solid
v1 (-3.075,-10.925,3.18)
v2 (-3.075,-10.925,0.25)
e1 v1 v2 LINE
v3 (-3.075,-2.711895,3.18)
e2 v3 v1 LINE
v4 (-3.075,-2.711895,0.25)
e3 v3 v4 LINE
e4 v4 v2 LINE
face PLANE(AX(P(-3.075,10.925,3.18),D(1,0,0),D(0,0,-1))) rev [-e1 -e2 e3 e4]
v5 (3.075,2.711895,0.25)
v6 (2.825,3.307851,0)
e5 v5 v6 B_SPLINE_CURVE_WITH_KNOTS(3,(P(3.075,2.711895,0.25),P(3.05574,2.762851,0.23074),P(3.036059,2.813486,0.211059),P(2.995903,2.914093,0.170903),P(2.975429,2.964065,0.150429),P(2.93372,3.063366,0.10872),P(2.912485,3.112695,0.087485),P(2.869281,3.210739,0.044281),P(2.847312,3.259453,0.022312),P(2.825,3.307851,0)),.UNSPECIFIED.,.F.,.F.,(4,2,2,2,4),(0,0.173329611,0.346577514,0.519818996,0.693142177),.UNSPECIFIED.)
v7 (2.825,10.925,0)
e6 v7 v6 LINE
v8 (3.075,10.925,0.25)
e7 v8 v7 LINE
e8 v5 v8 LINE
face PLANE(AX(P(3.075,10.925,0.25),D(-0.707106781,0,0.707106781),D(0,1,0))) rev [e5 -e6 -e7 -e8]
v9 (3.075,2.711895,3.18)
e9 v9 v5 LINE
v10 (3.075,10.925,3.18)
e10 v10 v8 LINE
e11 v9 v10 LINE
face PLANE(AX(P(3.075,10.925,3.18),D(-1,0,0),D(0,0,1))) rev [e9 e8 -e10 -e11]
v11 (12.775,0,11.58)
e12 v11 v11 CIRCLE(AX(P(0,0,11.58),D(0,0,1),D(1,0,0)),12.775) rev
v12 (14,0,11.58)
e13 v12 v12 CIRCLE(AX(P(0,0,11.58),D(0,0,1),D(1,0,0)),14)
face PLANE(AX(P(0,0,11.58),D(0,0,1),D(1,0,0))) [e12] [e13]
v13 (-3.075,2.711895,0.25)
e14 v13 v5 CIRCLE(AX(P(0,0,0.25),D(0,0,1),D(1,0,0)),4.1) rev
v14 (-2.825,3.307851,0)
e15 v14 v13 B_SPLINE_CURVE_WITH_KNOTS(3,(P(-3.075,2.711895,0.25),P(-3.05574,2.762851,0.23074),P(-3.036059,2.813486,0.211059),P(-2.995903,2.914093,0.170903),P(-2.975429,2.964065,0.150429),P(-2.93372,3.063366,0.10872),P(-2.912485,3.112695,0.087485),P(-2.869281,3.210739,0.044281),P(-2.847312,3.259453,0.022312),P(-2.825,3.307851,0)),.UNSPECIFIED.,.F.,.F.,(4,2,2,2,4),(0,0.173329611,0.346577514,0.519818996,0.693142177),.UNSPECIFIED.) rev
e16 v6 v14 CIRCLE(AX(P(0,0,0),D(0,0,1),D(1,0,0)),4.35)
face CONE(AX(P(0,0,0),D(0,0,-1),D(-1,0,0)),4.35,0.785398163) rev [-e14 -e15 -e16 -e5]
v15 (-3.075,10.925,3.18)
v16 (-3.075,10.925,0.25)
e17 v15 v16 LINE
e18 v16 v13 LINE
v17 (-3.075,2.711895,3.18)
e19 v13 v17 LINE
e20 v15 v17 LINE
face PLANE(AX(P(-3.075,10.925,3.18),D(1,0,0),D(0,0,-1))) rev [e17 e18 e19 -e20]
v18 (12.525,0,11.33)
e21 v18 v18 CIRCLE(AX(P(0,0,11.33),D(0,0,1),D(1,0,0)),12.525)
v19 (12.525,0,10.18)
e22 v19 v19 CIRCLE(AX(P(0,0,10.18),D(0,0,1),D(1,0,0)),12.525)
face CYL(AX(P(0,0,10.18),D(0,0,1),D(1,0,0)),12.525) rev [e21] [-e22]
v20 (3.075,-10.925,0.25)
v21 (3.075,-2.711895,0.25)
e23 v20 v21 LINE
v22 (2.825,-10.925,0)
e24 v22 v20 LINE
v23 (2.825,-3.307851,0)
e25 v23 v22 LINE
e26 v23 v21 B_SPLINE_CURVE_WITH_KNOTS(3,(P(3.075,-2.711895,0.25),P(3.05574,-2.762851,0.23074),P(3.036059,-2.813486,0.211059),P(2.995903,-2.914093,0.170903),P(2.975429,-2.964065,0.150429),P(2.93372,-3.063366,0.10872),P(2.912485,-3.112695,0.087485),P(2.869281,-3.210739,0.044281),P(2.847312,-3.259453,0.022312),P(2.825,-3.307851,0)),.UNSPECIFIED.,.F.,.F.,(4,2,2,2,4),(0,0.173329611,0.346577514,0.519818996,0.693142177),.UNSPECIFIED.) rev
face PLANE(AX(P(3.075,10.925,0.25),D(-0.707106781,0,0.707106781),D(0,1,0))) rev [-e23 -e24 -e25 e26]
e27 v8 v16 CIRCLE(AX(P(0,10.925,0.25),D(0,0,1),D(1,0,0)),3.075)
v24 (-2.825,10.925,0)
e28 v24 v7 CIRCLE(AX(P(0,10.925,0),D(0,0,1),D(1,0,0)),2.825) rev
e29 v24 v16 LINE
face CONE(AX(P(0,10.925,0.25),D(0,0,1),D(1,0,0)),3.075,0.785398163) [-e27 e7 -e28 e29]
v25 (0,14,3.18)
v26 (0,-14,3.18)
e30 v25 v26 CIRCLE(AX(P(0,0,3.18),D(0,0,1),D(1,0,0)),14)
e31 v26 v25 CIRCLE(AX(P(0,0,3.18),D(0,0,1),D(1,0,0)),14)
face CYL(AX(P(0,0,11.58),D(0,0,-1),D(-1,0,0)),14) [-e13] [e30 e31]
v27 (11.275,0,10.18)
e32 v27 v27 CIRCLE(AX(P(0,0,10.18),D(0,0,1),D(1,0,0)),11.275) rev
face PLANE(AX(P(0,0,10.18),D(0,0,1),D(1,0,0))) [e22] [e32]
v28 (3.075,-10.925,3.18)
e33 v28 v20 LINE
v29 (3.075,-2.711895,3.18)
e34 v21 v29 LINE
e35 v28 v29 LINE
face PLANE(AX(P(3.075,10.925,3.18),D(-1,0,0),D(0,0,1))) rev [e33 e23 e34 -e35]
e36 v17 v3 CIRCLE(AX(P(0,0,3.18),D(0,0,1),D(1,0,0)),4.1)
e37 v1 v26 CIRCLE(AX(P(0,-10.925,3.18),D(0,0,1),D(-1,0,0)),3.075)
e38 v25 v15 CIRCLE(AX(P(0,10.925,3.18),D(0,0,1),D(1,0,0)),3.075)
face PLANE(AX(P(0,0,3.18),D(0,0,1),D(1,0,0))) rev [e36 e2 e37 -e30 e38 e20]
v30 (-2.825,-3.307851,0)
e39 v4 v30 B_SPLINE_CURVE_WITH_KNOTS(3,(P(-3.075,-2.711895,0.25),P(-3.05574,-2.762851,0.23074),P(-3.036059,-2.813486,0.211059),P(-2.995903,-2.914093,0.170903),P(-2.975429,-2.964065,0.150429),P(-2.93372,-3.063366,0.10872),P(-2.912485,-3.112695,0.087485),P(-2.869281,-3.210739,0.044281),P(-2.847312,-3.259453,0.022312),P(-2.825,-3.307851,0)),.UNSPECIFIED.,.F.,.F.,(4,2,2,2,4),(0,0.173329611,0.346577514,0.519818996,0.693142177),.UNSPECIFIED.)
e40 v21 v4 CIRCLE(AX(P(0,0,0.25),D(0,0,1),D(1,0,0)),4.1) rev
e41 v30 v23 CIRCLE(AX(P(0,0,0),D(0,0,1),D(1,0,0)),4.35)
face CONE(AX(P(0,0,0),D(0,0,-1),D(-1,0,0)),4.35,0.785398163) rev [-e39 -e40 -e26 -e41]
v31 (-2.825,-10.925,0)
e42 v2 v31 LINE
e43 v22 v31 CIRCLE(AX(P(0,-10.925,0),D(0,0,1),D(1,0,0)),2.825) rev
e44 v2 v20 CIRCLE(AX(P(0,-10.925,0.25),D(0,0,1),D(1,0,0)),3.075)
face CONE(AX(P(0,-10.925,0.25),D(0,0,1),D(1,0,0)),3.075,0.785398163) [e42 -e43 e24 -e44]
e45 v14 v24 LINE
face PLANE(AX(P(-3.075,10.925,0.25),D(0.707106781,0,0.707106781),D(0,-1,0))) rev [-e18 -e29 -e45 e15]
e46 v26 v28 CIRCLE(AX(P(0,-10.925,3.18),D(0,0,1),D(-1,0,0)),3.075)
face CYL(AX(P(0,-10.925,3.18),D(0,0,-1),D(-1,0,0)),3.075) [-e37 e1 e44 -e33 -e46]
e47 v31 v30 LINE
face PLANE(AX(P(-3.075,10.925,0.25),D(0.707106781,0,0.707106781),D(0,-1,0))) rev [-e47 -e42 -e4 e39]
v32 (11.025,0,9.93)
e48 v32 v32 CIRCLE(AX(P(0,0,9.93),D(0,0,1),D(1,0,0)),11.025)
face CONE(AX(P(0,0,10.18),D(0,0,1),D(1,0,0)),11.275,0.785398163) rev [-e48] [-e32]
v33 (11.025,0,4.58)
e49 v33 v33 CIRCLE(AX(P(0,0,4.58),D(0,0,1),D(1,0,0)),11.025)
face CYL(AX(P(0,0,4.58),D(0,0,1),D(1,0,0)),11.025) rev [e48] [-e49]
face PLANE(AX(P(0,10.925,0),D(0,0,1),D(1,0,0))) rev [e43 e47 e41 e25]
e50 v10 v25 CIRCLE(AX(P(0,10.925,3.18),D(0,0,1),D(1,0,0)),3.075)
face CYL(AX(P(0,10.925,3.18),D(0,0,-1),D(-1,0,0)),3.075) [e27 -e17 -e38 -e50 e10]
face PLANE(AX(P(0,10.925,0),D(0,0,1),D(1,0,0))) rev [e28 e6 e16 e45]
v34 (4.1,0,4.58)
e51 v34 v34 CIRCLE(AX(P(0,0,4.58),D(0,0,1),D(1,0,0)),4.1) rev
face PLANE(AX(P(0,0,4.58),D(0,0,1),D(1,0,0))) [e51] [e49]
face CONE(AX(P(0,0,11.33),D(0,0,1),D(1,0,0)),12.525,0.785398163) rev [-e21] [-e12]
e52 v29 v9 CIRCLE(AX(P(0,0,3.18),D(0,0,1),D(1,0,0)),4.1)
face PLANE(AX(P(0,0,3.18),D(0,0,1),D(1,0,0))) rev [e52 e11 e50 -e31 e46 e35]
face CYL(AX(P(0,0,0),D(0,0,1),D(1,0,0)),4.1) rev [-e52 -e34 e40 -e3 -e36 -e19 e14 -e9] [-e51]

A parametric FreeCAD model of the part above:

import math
import FreeCAD as App
import Part
import Sketcher
Q = App.Units.Quantity


def edges_at(feature, points):
    """Names of the edges that pass closest to the given points."""
    edges = feature.Shape.Edges
    near = lambda p: min(range(len(edges)), key=lambda i: edges[i].distToShape(Part.Vertex(*p))[0])
    return sorted({f"Edge{near(p) + 1}" for p in points})

doc = App.newDocument("Part")
body = doc.addObject("PartDesign::Body", "Body")

# Sketch on XY plane
sketch1 = doc.addObject("Sketcher::SketchObject", "Sketch")
body.addObject(sketch1)
sketch1.AttachmentSupport = (doc.XY_Plane, [""])
sketch1.MapMode = "FlatFace"
sketch1.addGeometry([
    Part.LineSegment(App.Vector(3.1, -10.9, 0), App.Vector(3.1, 10.9, 0)),
    Part.ArcOfCircle(Part.Circle(App.Vector(0, 10.9, 0), App.Vector(0, 0, 1), 3.1), math.radians(0), math.radians(180)),
    Part.LineSegment(App.Vector(-3.1, 10.9, 0), App.Vector(-3.1, -10.9, 0)),
    Part.ArcOfCircle(Part.Circle(App.Vector(0, -10.9, 0), App.Vector(0, 0, 1), 3.1), math.radians(180), math.radians(360)),
], False)
sketch1.addConstraint([
    Sketcher.Constraint("Tangent", 0, 2, 1, 1),
    Sketcher.Constraint("Tangent", 1, 2, 2, 1),
    Sketcher.Constraint("Tangent", 2, 2, 3, 1),
    Sketcher.Constraint("Tangent", 3, 2, 0, 1),
    Sketcher.Constraint("Vertical", 0),
    Sketcher.Constraint("Vertical", 2),
    Sketcher.Constraint("Symmetric", 1, 3, 3, 3, -1, 1),
    Sketcher.Constraint("Radius", 1, Q("3.075 mm")),
    Sketcher.Constraint("DistanceY", 0, 1, 0, 2, Q("21.85 mm")),
])
pad1 = doc.addObject("PartDesign::Pad", "Pad")
body.addObject(pad1)
pad1.Profile = sketch1
pad1.Length = 3.18

# Sketch on XY plane
sketch2 = doc.addObject("Sketcher::SketchObject", "Sketch001")
body.addObject(sketch2)
sketch2.AttachmentSupport = (doc.XY_Plane, [""])
sketch2.MapMode = "FlatFace"
sketch2.AttachmentOffset = App.Placement(App.Vector(0, 0, 3.18), App.Rotation())
sketch2.addGeometry(Part.Circle(App.Vector(0, 0, 0), App.Vector(0, 0, 1), 14), False)
sketch2.addConstraint([
    Sketcher.Constraint("Coincident", 0, 3, -1, 1),
    Sketcher.Constraint("Diameter", 0, Q("28 mm")),
])
pad2 = doc.addObject("PartDesign::Pad", "Pad001")
body.addObject(pad2)
pad2.Profile = sketch2
pad2.Length = 8.4

# Sketch on XY plane
sketch3 = doc.addObject("Sketcher::SketchObject", "Sketch002")
body.addObject(sketch3)
sketch3.AttachmentSupport = (doc.XY_Plane, [""])
sketch3.MapMode = "FlatFace"
sketch3.AttachmentOffset = App.Placement(App.Vector(0, 0, 11.58), App.Rotation())
sketch3.addGeometry(Part.Circle(App.Vector(0, 0, 0), App.Vector(0, 0, 1), 4.1), False)
sketch3.addConstraint([
    Sketcher.Constraint("Coincident", 0, 3, -1, 1),
    Sketcher.Constraint("Diameter", 0, Q("8.2 mm")),
])
pocket1 = doc.addObject("PartDesign::Pocket", "Pocket")
body.addObject(pocket1)
pocket1.Profile = sketch3
pocket1.Type = "ThroughAll"

# Sketch on XY plane
sketch4 = doc.addObject("Sketcher::SketchObject", "Sketch003")
body.addObject(sketch4)
sketch4.AttachmentSupport = (doc.XY_Plane, [""])
sketch4.MapMode = "FlatFace"
sketch4.AttachmentOffset = App.Placement(App.Vector(0, 0, 11.58), App.Rotation())
sketch4.addGeometry(Part.Circle(App.Vector(0, 0, 0), App.Vector(0, 0, 1), 11), False)
sketch4.addConstraint([
    Sketcher.Constraint("Coincident", 0, 3, -1, 1),
    Sketcher.Constraint("Diameter", 0, Q("22.05 mm")),
])
pocket2 = doc.addObject("PartDesign::Pocket", "Pocket001")
body.addObject(pocket2)
pocket2.Profile = sketch4
pocket2.Length = 7

# Sketch on XY plane
sketch5 = doc.addObject("Sketcher::SketchObject", "Sketch004")
body.addObject(sketch5)
sketch5.AttachmentSupport = (doc.XY_Plane, [""])
sketch5.MapMode = "FlatFace"
sketch5.AttachmentOffset = App.Placement(App.Vector(0, 0, 11.58), App.Rotation())
sketch5.addGeometry(Part.Circle(App.Vector(0, 0, 0), App.Vector(0, 0, 1), 13), False)
sketch5.addConstraint([
    Sketcher.Constraint("Coincident", 0, 3, -1, 1),
    Sketcher.Constraint("Diameter", 0, Q("25.05 mm")),
])
pocket3 = doc.addObject("PartDesign::Pocket", "Pocket002")
body.addObject(pocket3)
pocket3.Profile = sketch5
pocket3.Length = 1.4
doc.recompute()

chamfer = doc.addObject("PartDesign::Chamfer", "Chamfer")
body.addObject(chamfer)
chamfer.Base = (pocket3, edges_at(pocket3, [
    (3.075, 6.818, 0),
    (-3.075, -6.818, 0),
    (0, -4.1, 0),
    (0, 4.1, 0),
    (-12.525, 0, 11.58),
    (-11.025, 0, 10.18),
    (3.075, -6.818, 0),
    (0, -14, 0),
    (-3.075, 6.818, 0),
    (0, 14, 0),
]))
chamfer.Size = 0.25

doc.recompute()
